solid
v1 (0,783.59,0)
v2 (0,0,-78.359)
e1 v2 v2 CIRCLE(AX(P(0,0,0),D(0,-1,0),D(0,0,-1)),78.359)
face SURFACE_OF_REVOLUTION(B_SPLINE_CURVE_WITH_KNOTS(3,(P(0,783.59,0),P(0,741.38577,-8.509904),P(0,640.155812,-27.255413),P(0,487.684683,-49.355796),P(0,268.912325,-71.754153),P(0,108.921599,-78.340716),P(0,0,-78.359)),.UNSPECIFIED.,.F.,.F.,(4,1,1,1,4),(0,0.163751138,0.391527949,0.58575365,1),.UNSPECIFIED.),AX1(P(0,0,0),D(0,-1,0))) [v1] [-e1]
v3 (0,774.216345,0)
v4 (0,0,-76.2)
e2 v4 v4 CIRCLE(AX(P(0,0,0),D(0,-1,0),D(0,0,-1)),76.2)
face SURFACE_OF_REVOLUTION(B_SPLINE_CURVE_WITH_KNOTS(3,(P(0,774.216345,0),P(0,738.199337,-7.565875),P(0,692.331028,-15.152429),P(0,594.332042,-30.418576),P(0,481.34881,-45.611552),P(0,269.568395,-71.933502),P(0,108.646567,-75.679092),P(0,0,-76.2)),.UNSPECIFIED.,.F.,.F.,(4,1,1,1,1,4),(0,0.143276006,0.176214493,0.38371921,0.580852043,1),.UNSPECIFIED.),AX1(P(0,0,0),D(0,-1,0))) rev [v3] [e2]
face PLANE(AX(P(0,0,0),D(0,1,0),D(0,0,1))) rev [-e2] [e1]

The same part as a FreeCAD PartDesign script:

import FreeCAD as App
import Part
import Sketcher

V = App.Vector

doc = App.newDocument("Part")
body = doc.addObject("PartDesign::Body", "Body")

sketch1 = body.newObject("Sketcher::SketchObject", "Sketch")
sketch1.AttachmentSupport = (doc.getObject("YZ_Plane"), [""])
sketch1.MapMode = "FlatFace"
sketch1.addGeometry(Part.LineSegment(V(0, -76.2, 0), V(0, -78.359, 0)), False)
sketch1.addGeometry(Part.BSplineCurve([V(173.99, -74.5236, 0), V(116.031085, -77.07256, 0), V(58.015583, -78.349261, 0), V(0, -78.359, 0)], [4, 4], [0.779357411, 1], False, 3, [1, 1, 1, 1], False), False)
sketch1.addGeometry(Part.BSplineCurve([V(326.39, -64.8716, 0), V(275.659017, -69.070864, 0), V(224.846292, -72.287004, 0), V(173.99, -74.5236, 0)], [4, 4], [0.58575365, 0.779357411], False, 3, [1, 1, 1, 1], False), False)
sketch1.addGeometry(Part.BSplineCurve([V(478.79, -49.276, 0), V(428.095639, -55.456643, 0), V(377.283953, -60.658846, 0), V(326.39, -64.8716, 0)], [4, 4], [0.391527949, 0.58575365], False, 3, [1, 1, 1, 1], False), False)
sketch1.addGeometry(Part.BSplineCurve([V(656.59, -23.495, 0), V(597.531544, -33.433715, 0), V(538.241452, -42.027695, 0), V(478.79, -49.276, 0)], [4, 4], [0.163751138, 0.391527949], False, 3, [1, 1, 1, 1], False), False)
sketch1.addGeometry(Part.BSplineCurve([V(732.79, -9.906, 0), V(707.435015, -14.681658, 0), V(682.034005, -19.213129, 0), V(656.59, -23.495, 0)], [4, 4], [0.065618634, 0.163751138], False, 3, [1, 1, 1, 1], False), False)
sketch1.addGeometry(Part.BSplineCurve([V(783.59, 0, 0), V(766.67785, -3.410103, 0), V(749.744214, -6.712643, 0), V(732.79, -9.906, 0)], [4, 4], [0, 0.065618634], False, 3, [1, 1, 1, 1], False), False)
sketch1.addGeometry(Part.LineSegment(V(783.59, 0, 0), V(774.216345, 0, 0)), False)
sketch1.addGeometry(Part.BSplineCurve([V(774.216345, 0, 0), V(760.557669, -2.869195, 0), V(746.715274, -5.537422, 0), V(732.79, -8.060128, 0)], [4, 4], [0, 0.054334345], False, 3, [1, 1, 1, 1], False), False)
sketch1.addGeometry(Part.BSplineCurve([V(732.79, -8.060128, 0), V(709.995265, -12.189628, 0), V(684.421027, -16.344706, 0), V(659.118675, -20.31865, 0), V(656.59, -20.714159, 0)], [4, 1, 4], [0.054334345, 0.143276006, 0.153158413], False, 3, [1, 1, 1, 1, 1], False), False)
sketch1.addGeometry(Part.BSplineCurve([V(656.59, -20.714159, 0), V(650.690494, -21.6369, 0), V(591.78038, -30.761701, 0), V(532.249002, -38.766949, 0), V(478.79, -45.677088, 0)], [4, 1, 4], [0.153158413, 0.176214493, 0.38371921], False, 3, [1, 1, 1, 1, 1], False), False)
sketch1.addGeometry(Part.BSplineCurve([V(478.79, -45.677088, 0), V(428.003085, -52.241832, 0), V(377.323784, -58.540705, 0), V(326.39, -63.207975, 0)], [4, 4], [0.38371921, 0.580852043], False, 3, [1, 1, 1, 1], False), False)
sketch1.addGeometry(Part.BSplineCurve([V(326.39, -63.207975, 0), V(275.774919, -67.846041, 0), V(224.908529, -70.872858, 0), V(173.99, -72.834586, 0)], [4, 4], [0.580852043, 0.776751373], False, 3, [1, 1, 1, 1], False), False)
sketch1.addGeometry(Part.BSplineCurve([V(173.99, -72.834586, 0), V(115.962789, -75.070189, 0), V(57.867864, -75.922552, 0), V(0, -76.2, 0)], [4, 4], [0.776751373, 1], False, 3, [1, 1, 1, 1], False), False)
sketch1.addConstraint(Sketcher.Constraint("Block", 1))
sketch1.addConstraint(Sketcher.Constraint("Block", 2))
sketch1.addConstraint(Sketcher.Constraint("Block", 3))
sketch1.addConstraint(Sketcher.Constraint("Block", 4))
sketch1.addConstraint(Sketcher.Constraint("Block", 5))
sketch1.addConstraint(Sketcher.Constraint("Block", 6))
sketch1.addConstraint(Sketcher.Constraint("Block", 8))
sketch1.addConstraint(Sketcher.Constraint("Block", 9))
sketch1.addConstraint(Sketcher.Constraint("Block", 10))
sketch1.addConstraint(Sketcher.Constraint("Block", 11))
sketch1.addConstraint(Sketcher.Constraint("Block", 12))
sketch1.addConstraint(Sketcher.Constraint("Block", 13))
sketch1.addConstraint(Sketcher.Constraint("Coincident", 0, 2, 1, 2))
sketch1.addConstraint(Sketcher.Constraint("Coincident", 6, 1, 7, 1))
sketch1.addConstraint(Sketcher.Constraint("Coincident", 7, 2, 8, 1))
sketch1.addConstraint(Sketcher.Constraint("Coincident", 13, 2, 0, 1))
revolution = body.newObject("PartDesign::Revolution", "Revolution")
revolution.Profile = sketch1
revolution.ReferenceAxis = (sketch1, ["H_Axis"])
revolution.Angle = 360

doc.recompute()
